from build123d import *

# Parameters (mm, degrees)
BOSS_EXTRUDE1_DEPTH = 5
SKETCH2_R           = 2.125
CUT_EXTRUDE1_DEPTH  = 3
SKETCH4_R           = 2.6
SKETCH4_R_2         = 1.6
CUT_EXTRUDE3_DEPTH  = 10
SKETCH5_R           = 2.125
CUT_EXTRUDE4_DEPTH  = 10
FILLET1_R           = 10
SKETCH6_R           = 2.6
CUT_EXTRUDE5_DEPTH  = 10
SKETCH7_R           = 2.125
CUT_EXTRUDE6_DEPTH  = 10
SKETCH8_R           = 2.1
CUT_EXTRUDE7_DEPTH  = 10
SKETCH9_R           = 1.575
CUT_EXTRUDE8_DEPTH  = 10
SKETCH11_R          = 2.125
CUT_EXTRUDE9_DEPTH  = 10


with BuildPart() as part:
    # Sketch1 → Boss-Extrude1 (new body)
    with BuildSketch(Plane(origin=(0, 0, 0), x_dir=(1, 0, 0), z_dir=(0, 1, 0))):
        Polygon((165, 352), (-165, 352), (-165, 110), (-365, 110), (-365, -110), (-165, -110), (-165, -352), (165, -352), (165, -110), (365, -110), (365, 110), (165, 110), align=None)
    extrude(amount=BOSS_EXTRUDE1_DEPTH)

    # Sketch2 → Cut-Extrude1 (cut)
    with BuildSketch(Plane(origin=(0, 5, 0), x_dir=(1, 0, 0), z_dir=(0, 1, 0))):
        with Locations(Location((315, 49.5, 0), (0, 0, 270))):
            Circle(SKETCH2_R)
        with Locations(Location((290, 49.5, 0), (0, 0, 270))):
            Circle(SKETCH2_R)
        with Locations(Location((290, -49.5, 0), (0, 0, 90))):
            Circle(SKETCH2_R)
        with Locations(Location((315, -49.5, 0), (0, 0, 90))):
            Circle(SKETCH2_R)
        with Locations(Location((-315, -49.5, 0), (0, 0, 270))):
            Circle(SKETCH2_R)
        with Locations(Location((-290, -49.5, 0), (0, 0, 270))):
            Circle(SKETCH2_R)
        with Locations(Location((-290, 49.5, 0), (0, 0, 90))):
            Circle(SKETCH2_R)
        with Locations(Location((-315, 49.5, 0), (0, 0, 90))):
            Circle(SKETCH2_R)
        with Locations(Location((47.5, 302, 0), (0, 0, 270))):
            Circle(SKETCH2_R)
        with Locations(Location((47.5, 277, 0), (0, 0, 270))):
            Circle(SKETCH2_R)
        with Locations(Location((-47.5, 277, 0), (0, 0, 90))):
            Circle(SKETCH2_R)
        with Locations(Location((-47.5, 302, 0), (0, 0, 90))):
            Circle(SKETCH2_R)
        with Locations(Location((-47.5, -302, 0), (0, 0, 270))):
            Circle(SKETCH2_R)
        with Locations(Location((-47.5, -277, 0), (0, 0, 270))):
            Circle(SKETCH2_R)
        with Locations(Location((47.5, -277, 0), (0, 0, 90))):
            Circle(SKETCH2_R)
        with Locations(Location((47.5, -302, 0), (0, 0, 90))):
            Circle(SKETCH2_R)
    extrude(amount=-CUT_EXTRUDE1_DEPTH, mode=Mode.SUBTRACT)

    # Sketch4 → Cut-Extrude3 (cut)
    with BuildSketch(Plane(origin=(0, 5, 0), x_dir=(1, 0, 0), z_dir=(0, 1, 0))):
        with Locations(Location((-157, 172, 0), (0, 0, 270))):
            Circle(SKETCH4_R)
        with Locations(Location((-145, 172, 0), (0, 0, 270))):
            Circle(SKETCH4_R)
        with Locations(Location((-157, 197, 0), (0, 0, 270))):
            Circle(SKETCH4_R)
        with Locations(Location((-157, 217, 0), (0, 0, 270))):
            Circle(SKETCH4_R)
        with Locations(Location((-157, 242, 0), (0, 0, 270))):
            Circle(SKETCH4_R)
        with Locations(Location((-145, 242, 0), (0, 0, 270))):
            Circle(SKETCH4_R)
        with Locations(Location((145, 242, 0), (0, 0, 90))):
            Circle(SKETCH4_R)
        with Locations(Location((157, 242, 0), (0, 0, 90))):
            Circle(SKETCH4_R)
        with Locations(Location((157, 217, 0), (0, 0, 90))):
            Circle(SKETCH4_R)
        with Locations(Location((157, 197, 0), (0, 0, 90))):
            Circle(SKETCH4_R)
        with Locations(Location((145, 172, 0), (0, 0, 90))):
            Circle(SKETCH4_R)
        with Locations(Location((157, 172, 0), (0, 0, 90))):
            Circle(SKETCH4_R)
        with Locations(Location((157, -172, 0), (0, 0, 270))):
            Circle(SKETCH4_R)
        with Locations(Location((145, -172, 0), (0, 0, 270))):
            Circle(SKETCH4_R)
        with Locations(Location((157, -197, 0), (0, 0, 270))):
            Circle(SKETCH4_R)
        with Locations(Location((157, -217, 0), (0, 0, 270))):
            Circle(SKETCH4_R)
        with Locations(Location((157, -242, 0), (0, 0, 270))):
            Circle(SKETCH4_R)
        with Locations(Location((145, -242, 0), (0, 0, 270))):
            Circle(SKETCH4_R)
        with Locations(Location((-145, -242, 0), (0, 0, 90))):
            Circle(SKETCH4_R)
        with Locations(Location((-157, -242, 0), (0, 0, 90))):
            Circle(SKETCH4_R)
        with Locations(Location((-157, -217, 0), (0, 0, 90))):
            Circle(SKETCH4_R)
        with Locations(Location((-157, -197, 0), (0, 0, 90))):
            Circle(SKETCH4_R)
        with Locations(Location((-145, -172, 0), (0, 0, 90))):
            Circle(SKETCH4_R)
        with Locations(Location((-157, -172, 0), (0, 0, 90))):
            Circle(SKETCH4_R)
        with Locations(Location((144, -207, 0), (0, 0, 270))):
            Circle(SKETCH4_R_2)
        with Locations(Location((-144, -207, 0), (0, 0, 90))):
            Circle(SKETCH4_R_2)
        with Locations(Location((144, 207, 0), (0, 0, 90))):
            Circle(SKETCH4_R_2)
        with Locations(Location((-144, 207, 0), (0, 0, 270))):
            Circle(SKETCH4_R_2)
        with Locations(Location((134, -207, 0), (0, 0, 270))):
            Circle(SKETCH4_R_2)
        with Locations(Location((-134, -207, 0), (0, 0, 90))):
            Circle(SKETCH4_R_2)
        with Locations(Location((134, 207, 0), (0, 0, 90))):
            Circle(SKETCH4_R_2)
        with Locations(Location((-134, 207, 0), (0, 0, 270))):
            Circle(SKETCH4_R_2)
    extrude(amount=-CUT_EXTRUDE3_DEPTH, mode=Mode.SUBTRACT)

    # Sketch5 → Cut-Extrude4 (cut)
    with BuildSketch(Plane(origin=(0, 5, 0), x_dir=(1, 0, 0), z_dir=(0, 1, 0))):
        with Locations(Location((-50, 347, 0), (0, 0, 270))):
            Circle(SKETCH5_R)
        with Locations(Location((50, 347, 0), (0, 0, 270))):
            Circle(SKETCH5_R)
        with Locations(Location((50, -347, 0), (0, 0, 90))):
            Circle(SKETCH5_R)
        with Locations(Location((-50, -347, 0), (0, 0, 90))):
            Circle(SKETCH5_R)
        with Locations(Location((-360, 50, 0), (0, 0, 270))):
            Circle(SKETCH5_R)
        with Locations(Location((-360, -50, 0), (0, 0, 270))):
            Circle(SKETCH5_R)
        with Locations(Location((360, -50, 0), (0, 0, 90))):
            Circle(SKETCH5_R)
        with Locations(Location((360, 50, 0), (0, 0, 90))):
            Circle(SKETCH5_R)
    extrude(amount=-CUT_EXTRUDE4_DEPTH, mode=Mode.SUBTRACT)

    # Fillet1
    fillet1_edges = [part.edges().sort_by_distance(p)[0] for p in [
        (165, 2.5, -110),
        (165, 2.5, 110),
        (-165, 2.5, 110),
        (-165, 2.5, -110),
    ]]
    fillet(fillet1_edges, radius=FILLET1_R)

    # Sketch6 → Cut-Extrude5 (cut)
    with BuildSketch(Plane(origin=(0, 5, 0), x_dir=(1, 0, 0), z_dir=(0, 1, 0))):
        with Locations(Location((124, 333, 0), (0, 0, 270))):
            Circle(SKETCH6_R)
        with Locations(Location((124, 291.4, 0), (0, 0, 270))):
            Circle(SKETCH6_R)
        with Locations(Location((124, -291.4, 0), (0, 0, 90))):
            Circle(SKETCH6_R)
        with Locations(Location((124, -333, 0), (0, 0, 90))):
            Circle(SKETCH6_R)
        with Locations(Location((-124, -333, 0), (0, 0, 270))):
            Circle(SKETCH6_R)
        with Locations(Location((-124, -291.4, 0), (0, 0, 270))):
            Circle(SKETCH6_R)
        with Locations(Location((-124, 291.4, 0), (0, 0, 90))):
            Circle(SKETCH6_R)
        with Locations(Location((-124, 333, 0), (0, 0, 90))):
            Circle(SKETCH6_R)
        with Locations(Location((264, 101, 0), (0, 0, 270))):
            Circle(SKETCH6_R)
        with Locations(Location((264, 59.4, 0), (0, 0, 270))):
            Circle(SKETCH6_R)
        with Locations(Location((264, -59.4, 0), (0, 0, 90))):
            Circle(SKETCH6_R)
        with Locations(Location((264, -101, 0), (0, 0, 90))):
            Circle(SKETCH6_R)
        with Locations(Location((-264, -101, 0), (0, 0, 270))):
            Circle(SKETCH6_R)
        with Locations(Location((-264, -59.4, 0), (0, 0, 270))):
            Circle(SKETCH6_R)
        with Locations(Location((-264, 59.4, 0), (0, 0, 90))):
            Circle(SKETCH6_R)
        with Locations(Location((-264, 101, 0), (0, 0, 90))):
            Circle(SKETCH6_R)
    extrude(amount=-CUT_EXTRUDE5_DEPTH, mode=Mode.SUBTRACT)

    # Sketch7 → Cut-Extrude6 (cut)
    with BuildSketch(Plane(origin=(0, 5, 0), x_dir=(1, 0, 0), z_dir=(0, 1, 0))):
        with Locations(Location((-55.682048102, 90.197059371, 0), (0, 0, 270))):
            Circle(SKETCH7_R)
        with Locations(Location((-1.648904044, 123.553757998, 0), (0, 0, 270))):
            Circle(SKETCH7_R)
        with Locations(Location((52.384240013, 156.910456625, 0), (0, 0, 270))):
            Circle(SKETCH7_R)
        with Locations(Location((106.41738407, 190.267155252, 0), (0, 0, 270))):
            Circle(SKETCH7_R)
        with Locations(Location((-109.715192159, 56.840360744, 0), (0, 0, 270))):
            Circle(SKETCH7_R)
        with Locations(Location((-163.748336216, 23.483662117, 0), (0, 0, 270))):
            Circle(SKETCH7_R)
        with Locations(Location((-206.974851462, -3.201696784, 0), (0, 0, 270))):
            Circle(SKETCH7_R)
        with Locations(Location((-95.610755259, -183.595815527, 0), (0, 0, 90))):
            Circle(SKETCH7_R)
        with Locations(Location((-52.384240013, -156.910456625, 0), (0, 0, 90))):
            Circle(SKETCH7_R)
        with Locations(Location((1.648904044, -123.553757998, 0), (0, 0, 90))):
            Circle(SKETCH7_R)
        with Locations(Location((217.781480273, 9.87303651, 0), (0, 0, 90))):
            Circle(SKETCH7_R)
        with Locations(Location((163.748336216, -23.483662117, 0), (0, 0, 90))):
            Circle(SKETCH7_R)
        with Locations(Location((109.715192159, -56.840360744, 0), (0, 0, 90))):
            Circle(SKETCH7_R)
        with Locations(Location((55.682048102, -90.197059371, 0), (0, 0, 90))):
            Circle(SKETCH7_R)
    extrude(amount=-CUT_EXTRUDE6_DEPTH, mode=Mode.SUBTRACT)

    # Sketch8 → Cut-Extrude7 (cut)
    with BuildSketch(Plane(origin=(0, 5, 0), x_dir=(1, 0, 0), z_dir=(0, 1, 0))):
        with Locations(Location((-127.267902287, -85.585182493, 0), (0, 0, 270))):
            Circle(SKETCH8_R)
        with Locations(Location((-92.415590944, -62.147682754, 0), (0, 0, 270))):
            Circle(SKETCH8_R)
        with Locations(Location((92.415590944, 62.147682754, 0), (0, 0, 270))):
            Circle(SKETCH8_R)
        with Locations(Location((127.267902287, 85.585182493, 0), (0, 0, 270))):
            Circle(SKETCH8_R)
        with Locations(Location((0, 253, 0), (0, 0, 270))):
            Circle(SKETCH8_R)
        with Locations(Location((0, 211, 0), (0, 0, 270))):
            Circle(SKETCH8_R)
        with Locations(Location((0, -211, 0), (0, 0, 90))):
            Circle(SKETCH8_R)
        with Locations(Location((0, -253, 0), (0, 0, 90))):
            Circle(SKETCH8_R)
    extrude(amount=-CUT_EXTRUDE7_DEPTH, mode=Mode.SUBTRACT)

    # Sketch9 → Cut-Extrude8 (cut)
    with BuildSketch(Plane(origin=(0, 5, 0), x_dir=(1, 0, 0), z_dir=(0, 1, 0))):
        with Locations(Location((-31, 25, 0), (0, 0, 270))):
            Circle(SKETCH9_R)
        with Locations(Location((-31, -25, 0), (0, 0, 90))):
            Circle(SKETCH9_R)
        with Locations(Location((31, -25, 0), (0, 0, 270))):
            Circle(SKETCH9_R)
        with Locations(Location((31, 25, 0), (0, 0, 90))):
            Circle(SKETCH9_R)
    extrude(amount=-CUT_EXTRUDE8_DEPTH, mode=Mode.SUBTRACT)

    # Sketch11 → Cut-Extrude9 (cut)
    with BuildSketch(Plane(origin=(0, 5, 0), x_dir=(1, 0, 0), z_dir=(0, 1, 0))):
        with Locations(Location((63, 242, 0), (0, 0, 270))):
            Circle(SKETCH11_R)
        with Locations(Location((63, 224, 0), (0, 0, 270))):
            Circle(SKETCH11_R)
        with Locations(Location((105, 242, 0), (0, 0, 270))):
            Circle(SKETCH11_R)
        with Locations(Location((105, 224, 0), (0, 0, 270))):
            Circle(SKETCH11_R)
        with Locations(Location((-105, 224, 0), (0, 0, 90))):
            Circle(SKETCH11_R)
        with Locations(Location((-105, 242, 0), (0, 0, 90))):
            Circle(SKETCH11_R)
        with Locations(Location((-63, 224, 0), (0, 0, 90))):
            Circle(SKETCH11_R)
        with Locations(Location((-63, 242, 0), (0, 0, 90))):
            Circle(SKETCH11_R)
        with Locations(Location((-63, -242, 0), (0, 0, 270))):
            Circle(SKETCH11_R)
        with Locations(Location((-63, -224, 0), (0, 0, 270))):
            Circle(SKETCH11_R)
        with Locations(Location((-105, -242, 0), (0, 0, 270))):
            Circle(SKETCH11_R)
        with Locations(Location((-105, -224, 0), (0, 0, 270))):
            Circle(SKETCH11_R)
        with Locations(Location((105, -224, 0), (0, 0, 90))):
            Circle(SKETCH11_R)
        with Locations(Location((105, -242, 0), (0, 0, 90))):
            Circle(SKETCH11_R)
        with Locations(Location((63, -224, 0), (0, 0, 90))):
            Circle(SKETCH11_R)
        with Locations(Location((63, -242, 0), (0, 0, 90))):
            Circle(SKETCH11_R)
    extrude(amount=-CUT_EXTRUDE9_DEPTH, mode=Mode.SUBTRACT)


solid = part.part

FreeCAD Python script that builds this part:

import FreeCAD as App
import Part
import Sketcher
Q = App.Units.Quantity


def edges_at(feature, points):
    """Names of the edges that pass closest to the given points."""
    edges = feature.Shape.Edges
    near = lambda p: min(range(len(edges)), key=lambda i: edges[i].distToShape(Part.Vertex(*p))[0])
    return sorted({f"Edge{near(p) + 1}" for p in points})

doc = App.newDocument("Part")
body = doc.addObject("PartDesign::Body", "Body")

# Sketch on XZ plane
sketch1 = body.newObject("Sketcher::SketchObject", "Sketch")
sketch1.AttachmentSupport = (doc.getObject("XZ_Plane"), [""])
sketch1.MapMode = "FlatFace"
sketch1.addGeometry(Part.LineSegment(App.Vector(165, -352, 0), App.Vector(-165, -352, 0)), False)
sketch1.addGeometry(Part.LineSegment(App.Vector(-165, -352, 0), App.Vector(-165, -110, 0)), False)
sketch1.addGeometry(Part.LineSegment(App.Vector(-165, -110, 0), App.Vector(-365, -110, 0)), False)
sketch1.addGeometry(Part.LineSegment(App.Vector(-365, -110, 0), App.Vector(-365, 110, 0)), False)
sketch1.addGeometry(Part.LineSegment(App.Vector(-365, 110, 0), App.Vector(-165, 110, 0)), False)
sketch1.addGeometry(Part.LineSegment(App.Vector(-165, 110, 0), App.Vector(-165, 352, 0)), False)
sketch1.addGeometry(Part.LineSegment(App.Vector(-165, 352, 0), App.Vector(165, 352, 0)), False)
sketch1.addGeometry(Part.LineSegment(App.Vector(165, 352, 0), App.Vector(165, 110, 0)), False)
sketch1.addGeometry(Part.LineSegment(App.Vector(165, 110, 0), App.Vector(365, 110, 0)), False)
sketch1.addGeometry(Part.LineSegment(App.Vector(365, 110, 0), App.Vector(365, -110, 0)), False)
sketch1.addGeometry(Part.LineSegment(App.Vector(365, -110, 0), App.Vector(165, -110, 0)), False)
sketch1.addGeometry(Part.LineSegment(App.Vector(165, -110, 0), App.Vector(165, -352, 0)), False)
sketch1.addConstraint(Sketcher.Constraint("Coincident", 0, 2, 1, 1))
sketch1.addConstraint(Sketcher.Constraint("Coincident", 1, 2, 2, 1))
sketch1.addConstraint(Sketcher.Constraint("Coincident", 2, 2, 3, 1))
sketch1.addConstraint(Sketcher.Constraint("Coincident", 3, 2, 4, 1))
sketch1.addConstraint(Sketcher.Constraint("Coincident", 4, 2, 5, 1))
sketch1.addConstraint(Sketcher.Constraint("Coincident", 5, 2, 6, 1))
sketch1.addConstraint(Sketcher.Constraint("Coincident", 6, 2, 7, 1))
sketch1.addConstraint(Sketcher.Constraint("Coincident", 7, 2, 8, 1))
sketch1.addConstraint(Sketcher.Constraint("Coincident", 8, 2, 9, 1))
sketch1.addConstraint(Sketcher.Constraint("Coincident", 9, 2, 10, 1))
sketch1.addConstraint(Sketcher.Constraint("Coincident", 10, 2, 11, 1))
sketch1.addConstraint(Sketcher.Constraint("Coincident", 11, 2, 0, 1))
sketch1.addConstraint(Sketcher.Constraint("Horizontal", 0))
sketch1.addConstraint(Sketcher.Constraint("Vertical", 1))
sketch1.addConstraint(Sketcher.Constraint("Horizontal", 2))
sketch1.addConstraint(Sketcher.Constraint("Vertical", 3))
sketch1.addConstraint(Sketcher.Constraint("Horizontal", 4))
sketch1.addConstraint(Sketcher.Constraint("Vertical", 5))
sketch1.addConstraint(Sketcher.Constraint("Horizontal", 6))
sketch1.addConstraint(Sketcher.Constraint("Vertical", 7))
sketch1.addConstraint(Sketcher.Constraint("Horizontal", 8))
sketch1.addConstraint(Sketcher.Constraint("Vertical", 9))
sketch1.addConstraint(Sketcher.Constraint("Horizontal", 10))
sketch1.addConstraint(Sketcher.Constraint("Vertical", 11))
sketch1.addConstraint(Sketcher.Constraint("Symmetric", 0, 2, 6, 2, -1, 1))
sketch1.addConstraint(Sketcher.Constraint("Symmetric", 2, 2, 8, 2, -1, 1))
sketch1.addConstraint(Sketcher.Constraint("Symmetric", 4, 2, 10, 2, -1, 1))
sketch1.addConstraint(Sketcher.Constraint("Symmetric", 4, 2, 7, 2, -2))
sketch1.addConstraint(Sketcher.Constraint("DistanceX", 0, 2, 0, 1, Q("330 mm")))
sketch1.addConstraint(Sketcher.Constraint("DistanceX", 2, 2, 2, 1, Q("200 mm")))
sketch1.addConstraint(Sketcher.Constraint("DistanceY", 1, 1, 1, 2, Q("242 mm")))
sketch1.addConstraint(Sketcher.Constraint("DistanceY", 3, 1, 3, 2, Q("220 mm")))
pad1 = body.newObject("PartDesign::Pad", "Pad")
pad1.Profile = sketch1
pad1.Length = 5
pad1.Reversed = True

# Sketch on XZ plane
sketch2 = body.newObject("Sketcher::SketchObject", "Sketch001")
sketch2.AttachmentSupport = (doc.getObject("XZ_Plane"), [""])
sketch2.MapMode = "FlatFace"
sketch2.AttachmentOffset = App.Placement(App.Vector(0, 0, -5), App.Rotation())
sketch2.addGeometry(Part.Circle(App.Vector(315, -49.5, 0), App.Vector(0, 0, 1), 2.1), False)
sketch2.addGeometry(Part.Circle(App.Vector(290, -49.5, 0), App.Vector(0, 0, 1), 2.1), False)
sketch2.addGeometry(Part.Circle(App.Vector(290, 49.5, 0), App.Vector(0, 0, 1), 2.1), False)
sketch2.addGeometry(Part.Circle(App.Vector(315, 49.5, 0), App.Vector(0, 0, 1), 2.1), False)
sketch2.addGeometry(Part.Circle(App.Vector(-315, 49.5, 0), App.Vector(0, 0, 1), 2.1), False)
sketch2.addGeometry(Part.Circle(App.Vector(-290, 49.5, 0), App.Vector(0, 0, 1), 2.1), False)
sketch2.addGeometry(Part.Circle(App.Vector(-290, -49.5, 0), App.Vector(0, 0, 1), 2.1), False)
sketch2.addGeometry(Part.Circle(App.Vector(-315, -49.5, 0), App.Vector(0, 0, 1), 2.1), False)
sketch2.addGeometry(Part.Circle(App.Vector(47.5, -302, 0), App.Vector(0, 0, 1), 2.1), False)
sketch2.addGeometry(Part.Circle(App.Vector(47.5, -277, 0), App.Vector(0, 0, 1), 2.1), False)
sketch2.addGeometry(Part.Circle(App.Vector(-47.5, -277, 0), App.Vector(0, 0, 1), 2.1), False)
sketch2.addGeometry(Part.Circle(App.Vector(-47.5, -302, 0), App.Vector(0, 0, 1), 2.1), False)
sketch2.addGeometry(Part.Circle(App.Vector(-47.5, 302, 0), App.Vector(0, 0, 1), 2.1), False)
sketch2.addGeometry(Part.Circle(App.Vector(-47.5, 277, 0), App.Vector(0, 0, 1), 2.1), False)
sketch2.addGeometry(Part.Circle(App.Vector(47.5, 277, 0), App.Vector(0, 0, 1), 2.1), False)
sketch2.addGeometry(Part.Circle(App.Vector(47.5, 302, 0), App.Vector(0, 0, 1), 2.1), False)
sketch2.addConstraint(Sketcher.Constraint("Equal", 0, 1))
sketch2.addConstraint(Sketcher.Constraint("Equal", 1, 2))
sketch2.addConstraint(Sketcher.Constraint("Equal", 2, 3))
sketch2.addConstraint(Sketcher.Constraint("Equal", 3, 4))
sketch2.addConstraint(Sketcher.Constraint("Equal", 4, 5))
sketch2.addConstraint(Sketcher.Constraint("Equal", 5, 6))
sketch2.addConstraint(Sketcher.Constraint("Equal", 6, 7))
sketch2.addConstraint(Sketcher.Constraint("Equal", 7, 8))
sketch2.addConstraint(Sketcher.Constraint("Equal", 8, 9))
sketch2.addConstraint(Sketcher.Constraint("Equal", 9, 10))
sketch2.addConstraint(Sketcher.Constraint("Equal", 10, 11))
sketch2.addConstraint(Sketcher.Constraint("Equal", 11, 12))
sketch2.addConstraint(Sketcher.Constraint("Equal", 12, 13))
sketch2.addConstraint(Sketcher.Constraint("Equal", 13, 14))
sketch2.addConstraint(Sketcher.Constraint("Equal", 14, 15))
sketch2.addConstraint(Sketcher.Constraint("Symmetric", 0, 3, 4, 3, -1, 1))
sketch2.addConstraint(Sketcher.Constraint("Symmetric", 1, 3, 5, 3, -1, 1))
sketch2.addConstraint(Sketcher.Constraint("Symmetric", 2, 3, 6, 3, -1, 1))
sketch2.addConstraint(Sketcher.Constraint("Symmetric", 3, 3, 7, 3, -1, 1))
sketch2.addConstraint(Sketcher.Constraint("Symmetric", 8, 3, 12, 3, -1, 1))
sketch2.addConstraint(Sketcher.Constraint("Symmetric", 9, 3, 13, 3, -1, 1))
sketch2.addConstraint(Sketcher.Constraint("Symmetric", 10, 3, 14, 3, -1, 1))
sketch2.addConstraint(Sketcher.Constraint("Symmetric", 11, 3, 15, 3, -1, 1))
sketch2.addConstraint(Sketcher.Constraint("Symmetric", 3, 3, 4, 3, -2))
sketch2.addConstraint(Sketcher.Constraint("Symmetric", 2, 3, 5, 3, -2))
sketch2.addConstraint(Sketcher.Constraint("Symmetric", 9, 3, 10, 3, -2))
sketch2.addConstraint(Sketcher.Constraint("Symmetric", 8, 3, 11, 3, -2))
sketch2.addConstraint(Sketcher.Constraint("Horizontal", 0, 3, 1, 3))
sketch2.addConstraint(Sketcher.Constraint("Vertical", 8, 3, 9, 3))
sketch2.addConstraint(Sketcher.Constraint("Diameter", 0, Q("4.25 mm")))
sketch2.addConstraint(Sketcher.Constraint("DistanceX", -1, 1, 0, 3, Q("315 mm")))
sketch2.addConstraint(Sketcher.Constraint("DistanceX", -1, 1, 1, 3, Q("290 mm")))
sketch2.addConstraint(Sketcher.Constraint("DistanceY", 8, 3, -1, 1, Q("302 mm")))
sketch2.addConstraint(Sketcher.Constraint("DistanceY", 9, 3, -1, 1, Q("277 mm")))
sketch2.addConstraint(Sketcher.Constraint("DistanceY", 1, 3, 2, 3, Q("99 mm")))
sketch2.addConstraint(Sketcher.Constraint("DistanceX", 10, 3, 9, 3, Q("95 mm")))
pocket1 = body.newObject("PartDesign::Pocket", "Pocket")
pocket1.Profile = sketch2
pocket1.Length = 3
pocket1.Reversed = True

# Sketch on XZ plane
sketch3 = body.newObject("Sketcher::SketchObject", "Sketch002")
sketch3.AttachmentSupport = (doc.getObject("XZ_Plane"), [""])
sketch3.MapMode = "FlatFace"
sketch3.AttachmentOffset = App.Placement(App.Vector(0, 0, -5), App.Rotation())
sketch3.addGeometry(Part.Circle(App.Vector(-157, -172, 0), App.Vector(0, 0, 1), 2.6), False)
sketch3.addGeometry(Part.Circle(App.Vector(-145, -172, 0), App.Vector(0, 0, 1), 2.6), False)
sketch3.addGeometry(Part.Circle(App.Vector(-157, -197, 0), App.Vector(0, 0, 1), 2.6), False)
sketch3.addGeometry(Part.Circle(App.Vector(-157, -217, 0), App.Vector(0, 0, 1), 2.6), False)
sketch3.addGeometry(Part.Circle(App.Vector(-157, -242, 0), App.Vector(0, 0, 1), 2.6), False)
sketch3.addGeometry(Part.Circle(App.Vector(-145, -242, 0), App.Vector(0, 0, 1), 2.6), False)
sketch3.addGeometry(Part.Circle(App.Vector(145, -242, 0), App.Vector(0, 0, 1), 2.6), False)
sketch3.addGeometry(Part.Circle(App.Vector(157, -242, 0), App.Vector(0, 0, 1), 2.6), False)
sketch3.addGeometry(Part.Circle(App.Vector(157, -217, 0), App.Vector(0, 0, 1), 2.6), False)
sketch3.addGeometry(Part.Circle(App.Vector(157, -197, 0), App.Vector(0, 0, 1), 2.6), False)
sketch3.addGeometry(Part.Circle(App.Vector(145, -172, 0), App.Vector(0, 0, 1), 2.6), False)
sketch3.addGeometry(Part.Circle(App.Vector(157, -172, 0), App.Vector(0, 0, 1), 2.6), False)
sketch3.addGeometry(Part.Circle(App.Vector(157, 172, 0), App.Vector(0, 0, 1), 2.6), False)
sketch3.addGeometry(Part.Circle(App.Vector(145, 172, 0), App.Vector(0, 0, 1), 2.6), False)
sketch3.addGeometry(Part.Circle(App.Vector(157, 197, 0), App.Vector(0, 0, 1), 2.6), False)
sketch3.addGeometry(Part.Circle(App.Vector(157, 217, 0), App.Vector(0, 0, 1), 2.6), False)
sketch3.addGeometry(Part.Circle(App.Vector(157, 242, 0), App.Vector(0, 0, 1), 2.6), False)
sketch3.addGeometry(Part.Circle(App.Vector(145, 242, 0), App.Vector(0, 0, 1), 2.6), False)
sketch3.addGeometry(Part.Circle(App.Vector(-145, 242, 0), App.Vector(0, 0, 1), 2.6), False)
sketch3.addGeometry(Part.Circle(App.Vector(-157, 242, 0), App.Vector(0, 0, 1), 2.6), False)
sketch3.addGeometry(Part.Circle(App.Vector(-157, 217, 0), App.Vector(0, 0, 1), 2.6), False)
sketch3.addGeometry(Part.Circle(App.Vector(-157, 197, 0), App.Vector(0, 0, 1), 2.6), False)
sketch3.addGeometry(Part.Circle(App.Vector(-145, 172, 0), App.Vector(0, 0, 1), 2.6), False)
sketch3.addGeometry(Part.Circle(App.Vector(-157, 172, 0), App.Vector(0, 0, 1), 2.6), False)
sketch3.addGeometry(Part.Circle(App.Vector(144, 207, 0), App.Vector(0, 0, 1), 1.6), False)
sketch3.addGeometry(Part.Circle(App.Vector(-144, 207, 0), App.Vector(0, 0, 1), 1.6), False)
sketch3.addGeometry(Part.Circle(App.Vector(144, -207, 0), App.Vector(0, 0, 1), 1.6), False)
sketch3.addGeometry(Part.Circle(App.Vector(-144, -207, 0), App.Vector(0, 0, 1), 1.6), False)
sketch3.addGeometry(Part.Circle(App.Vector(134, 207, 0), App.Vector(0, 0, 1), 1.6), False)
sketch3.addGeometry(Part.Circle(App.Vector(-134, 207, 0), App.Vector(0, 0, 1), 1.6), False)
sketch3.addGeometry(Part.Circle(App.Vector(134, -207, 0), App.Vector(0, 0, 1), 1.6), False)
sketch3.addGeometry(Part.Circle(App.Vector(-134, -207, 0), App.Vector(0, 0, 1), 1.6), False)
sketch3.addConstraint(Sketcher.Constraint("Equal", 0, 1))
sketch3.addConstraint(Sketcher.Constraint("Equal", 1, 2))
sketch3.addConstraint(Sketcher.Constraint("Equal", 2, 3))
sketch3.addConstraint(Sketcher.Constraint("Equal", 3, 4))
sketch3.addConstraint(Sketcher.Constraint("Equal", 4, 5))
sketch3.addConstraint(Sketcher.Constraint("Equal", 5, 6))
sketch3.addConstraint(Sketcher.Constraint("Equal", 6, 7))
sketch3.addConstraint(Sketcher.Constraint("Equal", 7, 8))
sketch3.addConstraint(Sketcher.Constraint("Equal", 8, 9))
sketch3.addConstraint(Sketcher.Constraint("Equal", 9, 10))
sketch3.addConstraint(Sketcher.Constraint("Equal", 10, 11))
sketch3.addConstraint(Sketcher.Constraint("Equal", 11, 12))
sketch3.addConstraint(Sketcher.Constraint("Equal", 12, 13))
sketch3.addConstraint(Sketcher.Constraint("Equal", 13, 14))
sketch3.addConstraint(Sketcher.Constraint("Equal", 14, 15))
sketch3.addConstraint(Sketcher.Constraint("Equal", 15, 16))
sketch3.addConstraint(Sketcher.Constraint("Equal", 16, 17))
sketch3.addConstraint(Sketcher.Constraint("Equal", 17, 18))
sketch3.addConstraint(Sketcher.Constraint("Equal", 18, 19))
sketch3.addConstraint(Sketcher.Constraint("Equal", 19, 20))
sketch3.addConstraint(Sketcher.Constraint("Equal", 20, 21))
sketch3.addConstraint(Sketcher.Constraint("Equal", 21, 22))
sketch3.addConstraint(Sketcher.Constraint("Equal", 22, 23))
sketch3.addConstraint(Sketcher.Constraint("Equal", 24, 25))
sketch3.addConstraint(Sketcher.Constraint("Equal", 25, 26))
sketch3.addConstraint(Sketcher.Constraint("Equal", 26, 27))
sketch3.addConstraint(Sketcher.Constraint("Equal", 27, 28))
sketch3.addConstraint(Sketcher.Constraint("Equal", 28, 29))
sketch3.addConstraint(Sketcher.Constraint("Equal", 29, 30))
sketch3.addConstraint(Sketcher.Constraint("Equal", 30, 31))
sketch3.addConstraint(Sketcher.Constraint("Symmetric", 0, 3, 12, 3, -1, 1))
sketch3.addConstraint(Sketcher.Constraint("Symmetric", 1, 3, 13, 3, -1, 1))
sketch3.addConstraint(Sketcher.Constraint("Symmetric", 2, 3, 14, 3, -1, 1))
sketch3.addConstraint(Sketcher.Constraint("Symmetric", 3, 3, 15, 3, -1, 1))
sketch3.addConstraint(Sketcher.Constraint("Symmetric", 4, 3, 16, 3, -1, 1))
sketch3.addConstraint(Sketcher.Constraint("Symmetric", 5, 3, 17, 3, -1, 1))
sketch3.addConstraint(Sketcher.Constraint("Symmetric", 6, 3, 18, 3, -1, 1))
sketch3.addConstraint(Sketcher.Constraint("Symmetric", 7, 3, 19, 3, -1, 1))
sketch3.addConstraint(Sketcher.Constraint("Symmetric", 8, 3, 20, 3, -1, 1))
sketch3.addConstraint(Sketcher.Constraint("Symmetric", 9, 3, 21, 3, -1, 1))
sketch3.addConstraint(Sketcher.Constraint("Symmetric", 10, 3, 22, 3, -1, 1))
sketch3.addConstraint(Sketcher.Constraint("Symmetric", 11, 3, 23, 3, -1, 1))
sketch3.addConstraint(Sketcher.Constraint("Symmetric", 25, 3, 26, 3, -1, 1))
sketch3.addConstraint(Sketcher.Constraint("Symmetric", 24, 3, 27, 3, -1, 1))
sketch3.addConstraint(Sketcher.Constraint("Symmetric", 29, 3, 30, 3, -1, 1))
sketch3.addConstraint(Sketcher.Constraint("Symmetric", 28, 3, 31, 3, -1, 1))
sketch3.addConstraint(Sketcher.Constraint("Symmetric", 5, 3, 6, 3, -2))
sketch3.addConstraint(Sketcher.Constraint("Symmetric", 4, 3, 7, 3, -2))
sketch3.addConstraint(Sketcher.Constraint("Symmetric", 3, 3, 8, 3, -2))
sketch3.addConstraint(Sketcher.Constraint("Symmetric", 2, 3, 9, 3, -2))
sketch3.addConstraint(Sketcher.Constraint("Symmetric", 1, 3, 10, 3, -2))
sketch3.addConstraint(Sketcher.Constraint("Symmetric", 0, 3, 11, 3, -2))
sketch3.addConstraint(Sketcher.Constraint("Symmetric", 24, 3, 25, 3, -2))
sketch3.addConstraint(Sketcher.Constraint("Symmetric", 28, 3, 29, 3, -2))
sketch3.addConstraint(Sketcher.Constraint("Horizontal", 0, 3, 1, 3))
sketch3.addConstraint(Sketcher.Constraint("Horizontal", 4, 3, 5, 3))
sketch3.addConstraint(Sketcher.Constraint("Horizontal", 25, 3, 28, 3))
sketch3.addConstraint(Sketcher.Constraint("Vertical", 0, 3, 2, 3))
sketch3.addConstraint(Sketcher.Constraint("Vertical", 2, 3, 3, 3))
sketch3.addConstraint(Sketcher.Constraint("Vertical", 3, 3, 4, 3))
sketch3.addConstraint(Sketcher.Constraint("Vertical", 1, 3, 5, 3))
sketch3.addConstraint(Sketcher.Constraint("Diameter", 0, Q("5.2 mm")))
sketch3.addConstraint(Sketcher.Constraint("Diameter", 24, Q("3.2 mm")))
sketch3.addConstraint(Sketcher.Constraint("DistanceX", 0, 3, -1, 1, Q("157 mm")))
sketch3.addConstraint(Sketcher.Constraint("DistanceY", 0, 3, -1, 1, Q("172 mm")))
sketch3.addConstraint(Sketcher.Constraint("DistanceX", 1, 3, -1, 1, Q("145 mm")))
sketch3.addConstraint(Sketcher.Constraint("DistanceY", 2, 3, -1, 1, Q("197 mm")))
sketch3.addConstraint(Sketcher.Constraint("DistanceY", 3, 3, -1, 1, Q("217 mm")))
sketch3.addConstraint(Sketcher.Constraint("DistanceY", 4, 3, -1, 1, Q("242 mm")))
sketch3.addConstraint(Sketcher.Constraint("DistanceX", -1, 1, 24, 3, Q("144 mm")))
sketch3.addConstraint(Sketcher.Constraint("DistanceY", -1, 1, 24, 3, Q("207 mm")))
sketch3.addConstraint(Sketcher.Constraint("DistanceX", -1, 1, 28, 3, Q("134 mm")))
pocket2 = body.newObject("PartDesign::Pocket", "Pocket001")
pocket2.Profile = sketch3
pocket2.Length = 10
pocket2.Reversed = True

# Sketch on XZ plane
sketch4 = body.newObject("Sketcher::SketchObject", "Sketch003")
sketch4.AttachmentSupport = (doc.getObject("XZ_Plane"), [""])
sketch4.MapMode = "FlatFace"
sketch4.AttachmentOffset = App.Placement(App.Vector(0, 0, -5), App.Rotation())
sketch4.addGeometry(Part.Circle(App.Vector(-50, -347, 0), App.Vector(0, 0, 1), 2.1), False)
sketch4.addGeometry(Part.Circle(App.Vector(50, -347, 0), App.Vector(0, 0, 1), 2.1), False)
sketch4.addGeometry(Part.Circle(App.Vector(50, 347, 0), App.Vector(0, 0, 1), 2.1), False)
sketch4.addGeometry(Part.Circle(App.Vector(-50, 347, 0), App.Vector(0, 0, 1), 2.1), False)
sketch4.addGeometry(Part.Circle(App.Vector(-360, -50, 0), App.Vector(0, 0, 1), 2.1), False)
sketch4.addGeometry(Part.Circle(App.Vector(-360, 50, 0), App.Vector(0, 0, 1), 2.1), False)
sketch4.addGeometry(Part.Circle(App.Vector(360, 50, 0), App.Vector(0, 0, 1), 2.1), False)
sketch4.addGeometry(Part.Circle(App.Vector(360, -50, 0), App.Vector(0, 0, 1), 2.1), False)
sketch4.addConstraint(Sketcher.Constraint("Equal", 0, 1))
sketch4.addConstraint(Sketcher.Constraint("Equal", 1, 2))
sketch4.addConstraint(Sketcher.Constraint("Equal", 2, 3))
sketch4.addConstraint(Sketcher.Constraint("Equal", 3, 4))
sketch4.addConstraint(Sketcher.Constraint("Equal", 4, 5))
sketch4.addConstraint(Sketcher.Constraint("Equal", 5, 6))
sketch4.addConstraint(Sketcher.Constraint("Equal", 6, 7))
sketch4.addConstraint(Sketcher.Constraint("Symmetric", 0, 3, 2, 3, -1, 1))
sketch4.addConstraint(Sketcher.Constraint("Symmetric", 1, 3, 3, 3, -1, 1))
sketch4.addConstraint(Sketcher.Constraint("Symmetric", 4, 3, 6, 3, -1, 1))
sketch4.addConstraint(Sketcher.Constraint("Symmetric", 5, 3, 7, 3, -1, 1))
sketch4.addConstraint(Sketcher.Constraint("Symmetric", 0, 3, 1, 3, -2))
sketch4.addConstraint(Sketcher.Constraint("Symmetric", 5, 3, 6, 3, -2))
sketch4.addConstraint(Sketcher.Constraint("Diameter", 0, Q("4.25 mm")))
sketch4.addConstraint(Sketcher.Constraint("DistanceX", 0, 3, -1, 1, Q("50 mm")))
sketch4.addConstraint(Sketcher.Constraint("DistanceY", 0, 3, -1, 1, Q("347 mm")))
sketch4.addConstraint(Sketcher.Constraint("DistanceX", 4, 3, -1, 1, Q("360 mm")))
sketch4.addConstraint(Sketcher.Constraint("DistanceY", 4, 3, -1, 1, Q("50 mm")))
pocket3 = body.newObject("PartDesign::Pocket", "Pocket002")
pocket3.Profile = sketch4
pocket3.Length = 10
pocket3.Reversed = True
doc.recompute()

fillet = body.newObject("PartDesign::Fillet", "Fillet")
fillet.Base = (pocket3, edges_at(pocket3, [
    (165, 2.5, -110),
    (165, 2.5, 110),
    (-165, 2.5, 110),
    (-165, 2.5, -110),
]))
fillet.Radius = 10

# Sketch on XZ plane
sketch5 = body.newObject("Sketcher::SketchObject", "Sketch004")
sketch5.AttachmentSupport = (doc.getObject("XZ_Plane"), [""])
sketch5.MapMode = "FlatFace"
sketch5.AttachmentOffset = App.Placement(App.Vector(0, 0, -5), App.Rotation())
sketch5.addGeometry(Part.Circle(App.Vector(124, -333, 0), App.Vector(0, 0, 1), 2.6), False)
sketch5.addGeometry(Part.Circle(App.Vector(124, -291.4, 0), App.Vector(0, 0, 1), 2.6), False)
sketch5.addGeometry(Part.Circle(App.Vector(124, 291.4, 0), App.Vector(0, 0, 1), 2.6), False)
sketch5.addGeometry(Part.Circle(App.Vector(124, 333, 0), App.Vector(0, 0, 1), 2.6), False)
sketch5.addGeometry(Part.Circle(App.Vector(-124, 333, 0), App.Vector(0, 0, 1), 2.6), False)
sketch5.addGeometry(Part.Circle(App.Vector(-124, 291.4, 0), App.Vector(0, 0, 1), 2.6), False)
sketch5.addGeometry(Part.Circle(App.Vector(-124, -291.4, 0), App.Vector(0, 0, 1), 2.6), False)
sketch5.addGeometry(Part.Circle(App.Vector(-124, -333, 0), App.Vector(0, 0, 1), 2.6), False)
sketch5.addGeometry(Part.Circle(App.Vector(264, -101, 0), App.Vector(0, 0, 1), 2.6), False)
sketch5.addGeometry(Part.Circle(App.Vector(264, -59.4, 0), App.Vector(0, 0, 1), 2.6), False)
sketch5.addGeometry(Part.Circle(App.Vector(264, 59.4, 0), App.Vector(0, 0, 1), 2.6), False)
sketch5.addGeometry(Part.Circle(App.Vector(264, 101, 0), App.Vector(0, 0, 1), 2.6), False)
sketch5.addGeometry(Part.Circle(App.Vector(-264, 101, 0), App.Vector(0, 0, 1), 2.6), False)
sketch5.addGeometry(Part.Circle(App.Vector(-264, 59.4, 0), App.Vector(0, 0, 1), 2.6), False)
sketch5.addGeometry(Part.Circle(App.Vector(-264, -59.4, 0), App.Vector(0, 0, 1), 2.6), False)
sketch5.addGeometry(Part.Circle(App.Vector(-264, -101, 0), App.Vector(0, 0, 1), 2.6), False)
sketch5.addConstraint(Sketcher.Constraint("Equal", 0, 1))
sketch5.addConstraint(Sketcher.Constraint("Equal", 1, 2))
sketch5.addConstraint(Sketcher.Constraint("Equal", 2, 3))
sketch5.addConstraint(Sketcher.Constraint("Equal", 3, 4))
sketch5.addConstraint(Sketcher.Constraint("Equal", 4, 5))
sketch5.addConstraint(Sketcher.Constraint("Equal", 5, 6))
sketch5.addConstraint(Sketcher.Constraint("Equal", 6, 7))
sketch5.addConstraint(Sketcher.Constraint("Equal", 7, 8))
sketch5.addConstraint(Sketcher.Constraint("Equal", 8, 9))
sketch5.addConstraint(Sketcher.Constraint("Equal", 9, 10))
sketch5.addConstraint(Sketcher.Constraint("Equal", 10, 11))
sketch5.addConstraint(Sketcher.Constraint("Equal", 11, 12))
sketch5.addConstraint(Sketcher.Constraint("Equal", 12, 13))
sketch5.addConstraint(Sketcher.Constraint("Equal", 13, 14))
sketch5.addConstraint(Sketcher.Constraint("Equal", 14, 15))
sketch5.addConstraint(Sketcher.Constraint("Symmetric", 0, 3, 4, 3, -1, 1))
sketch5.addConstraint(Sketcher.Constraint("Symmetric", 1, 3, 5, 3, -1, 1))
sketch5.addConstraint(Sketcher.Constraint("Symmetric", 2, 3, 6, 3, -1, 1))
sketch5.addConstraint(Sketcher.Constraint("Symmetric", 3, 3, 7, 3, -1, 1))
sketch5.addConstraint(Sketcher.Constraint("Symmetric", 8, 3, 12, 3, -1, 1))
sketch5.addConstraint(Sketcher.Constraint("Symmetric", 9, 3, 13, 3, -1, 1))
sketch5.addConstraint(Sketcher.Constraint("Symmetric", 10, 3, 14, 3, -1, 1))
sketch5.addConstraint(Sketcher.Constraint("Symmetric", 11, 3, 15, 3, -1, 1))
sketch5.addConstraint(Sketcher.Constraint("Symmetric", 3, 3, 4, 3, -2))
sketch5.addConstraint(Sketcher.Constraint("Symmetric", 2, 3, 5, 3, -2))
sketch5.addConstraint(Sketcher.Constraint("Symmetric", 11, 3, 12, 3, -2))
sketch5.addConstraint(Sketcher.Constraint("Symmetric", 10, 3, 13, 3, -2))
sketch5.addConstraint(Sketcher.Constraint("Vertical", 0, 3, 1, 3))
sketch5.addConstraint(Sketcher.Constraint("Vertical", 8, 3, 9, 3))
sketch5.addConstraint(Sketcher.Constraint("Diameter", 0, Q("5.2 mm")))
sketch5.addConstraint(Sketcher.Constraint("DistanceX", -1, 1, 0, 3, Q("124 mm")))
sketch5.addConstraint(Sketcher.Constraint("DistanceY", 0, 3, -1, 1, Q("333 mm")))
sketch5.addConstraint(Sketcher.Constraint("DistanceX", -1, 1, 8, 3, Q("264 mm")))
sketch5.addConstraint(Sketcher.Constraint("DistanceY", 8, 3, -1, 1, Q("101 mm")))
sketch5.addConstraint(Sketcher.Constraint("DistanceY", 1, 3, 9, 3, Q("232 mm")))
sketch5.addConstraint(Sketcher.Constraint("DistanceY", 1, 3, -1, 1, Q("291.4 mm")))
pocket4 = body.newObject("PartDesign::Pocket", "Pocket003")
pocket4.Profile = sketch5
pocket4.Length = 10
pocket4.Reversed = True

# Sketch on XZ plane
sketch6 = body.newObject("Sketcher::SketchObject", "Sketch005")
sketch6.AttachmentSupport = (doc.getObject("XZ_Plane"), [""])
sketch6.MapMode = "FlatFace"
sketch6.AttachmentOffset = App.Placement(App.Vector(0, 0, -5), App.Rotation())
sketch6.addGeometry(Part.Circle(App.Vector(-55.7, -90.2, 0), App.Vector(0, 0, 1), 2.1), False)
sketch6.addGeometry(Part.Circle(App.Vector(-1.6, -123.6, 0), App.Vector(0, 0, 1), 2.1), False)
sketch6.addGeometry(Part.Circle(App.Vector(52.4, -156.9, 0), App.Vector(0, 0, 1), 2.1), False)
sketch6.addGeometry(Part.Circle(App.Vector(106.4, -190.3, 0), App.Vector(0, 0, 1), 2.1), False)
sketch6.addGeometry(Part.Circle(App.Vector(-109.7, -56.8, 0), App.Vector(0, 0, 1), 2.1), False)
sketch6.addGeometry(Part.Circle(App.Vector(-163.7, -23.5, 0), App.Vector(0, 0, 1), 2.1), False)
sketch6.addGeometry(Part.Circle(App.Vector(-207, 3.2, 0), App.Vector(0, 0, 1), 2.1), False)
sketch6.addGeometry(Part.Circle(App.Vector(-95.6, 183.6, 0), App.Vector(0, 0, 1), 2.1), False)
sketch6.addGeometry(Part.Circle(App.Vector(-52.4, 156.9, 0), App.Vector(0, 0, 1), 2.1), False)
sketch6.addGeometry(Part.Circle(App.Vector(1.6, 123.6, 0), App.Vector(0, 0, 1), 2.1), False)
sketch6.addGeometry(Part.Circle(App.Vector(217.8, -9.9, 0), App.Vector(0, 0, 1), 2.1), False)
sketch6.addGeometry(Part.Circle(App.Vector(163.7, 23.5, 0), App.Vector(0, 0, 1), 2.1), False)
sketch6.addGeometry(Part.Circle(App.Vector(109.7, 56.8, 0), App.Vector(0, 0, 1), 2.1), False)
sketch6.addGeometry(Part.Circle(App.Vector(55.7, 90.2, 0), App.Vector(0, 0, 1), 2.1), False)
sketch6.addConstraint(Sketcher.Constraint("Equal", 0, 1))
sketch6.addConstraint(Sketcher.Constraint("Equal", 1, 2))
sketch6.addConstraint(Sketcher.Constraint("Equal", 2, 3))
sketch6.addConstraint(Sketcher.Constraint("Equal", 3, 4))
sketch6.addConstraint(Sketcher.Constraint("Equal", 4, 5))
sketch6.addConstraint(Sketcher.Constraint("Equal", 5, 6))
sketch6.addConstraint(Sketcher.Constraint("Equal", 6, 7))
sketch6.addConstraint(Sketcher.Constraint("Equal", 7, 8))
sketch6.addConstraint(Sketcher.Constraint("Equal", 8, 9))
sketch6.addConstraint(Sketcher.Constraint("Equal", 9, 10))
sketch6.addConstraint(Sketcher.Constraint("Equal", 10, 11))
sketch6.addConstraint(Sketcher.Constraint("Equal", 11, 12))
sketch6.addConstraint(Sketcher.Constraint("Equal", 12, 13))
sketch6.addConstraint(Sketcher.Constraint("Symmetric", 2, 3, 8, 3, -1, 1))
sketch6.addConstraint(Sketcher.Constraint("Symmetric", 1, 3, 9, 3, -1, 1))
sketch6.addConstraint(Sketcher.Constraint("Symmetric", 5, 3, 11, 3, -1, 1))
sketch6.addConstraint(Sketcher.Constraint("Symmetric", 4, 3, 12, 3, -1, 1))
sketch6.addConstraint(Sketcher.Constraint("Symmetric", 0, 3, 13, 3, -1, 1))
sketch6.addConstraint(Sketcher.Constraint("Diameter", 0, Q("4.25 mm")))
sketch6.addConstraint(Sketcher.Constraint("DistanceY", 1, 3, 0, 3, Q("33.356699 mm")))
sketch6.addConstraint(Sketcher.Constraint("DistanceY", 2, 3, 1, 3, Q("33.356699 mm")))
sketch6.addConstraint(Sketcher.Constraint("DistanceY", 3, 3, 2, 3, Q("33.356699 mm")))
sketch6.addConstraint(Sketcher.Constraint("DistanceY", 0, 3, 4, 3, Q("33.356699 mm")))
sketch6.addConstraint(Sketcher.Constraint("DistanceY", 4, 3, 5, 3, Q("33.356699 mm")))
sketch6.addConstraint(Sketcher.Constraint("DistanceY", 10, 3, 11, 3, Q("33.356699 mm")))
sketch6.addConstraint(Sketcher.Constraint("DistanceX", 0, 3, -1, 1, Q("55.682048 mm")))
sketch6.addConstraint(Sketcher.Constraint("DistanceY", 0, 3, -1, 1, Q("90.197059 mm")))
sketch6.addConstraint(Sketcher.Constraint("DistanceX", -1, 1, 2, 3, Q("52.38424 mm")))
sketch6.addConstraint(Sketcher.Constraint("DistanceX", 6, 3, -1, 1, Q("206.974851 mm")))
sketch6.addConstraint(Sketcher.Constraint("DistanceX", -1, 1, 10, 3, Q("217.78148 mm")))
sketch6.addConstraint(Sketcher.Constraint("DistanceX", 1, 3, 3, 3, Q("108.066288 mm")))
sketch6.addConstraint(Sketcher.Constraint("DistanceX", 4, 3, 1, 3, Q("108.066288 mm")))
sketch6.addConstraint(Sketcher.Constraint("DistanceX", 5, 3, 0, 3, Q("108.066288 mm")))
sketch6.addConstraint(Sketcher.Constraint("DistanceX", 5, 3, 3, 3, Q("270.16572 mm")))
sketch6.addConstraint(Sketcher.Constraint("DistanceY", 5, 3, 6, 3, Q("26.685359 mm")))
sketch6.addConstraint(Sketcher.Constraint("DistanceY", 6, 3, 7, 3, Q("180.394119 mm")))
sketch6.addConstraint(Sketcher.Constraint("DistanceX", 5, 3, 7, 3, Q("68.137581 mm")))
pocket5 = body.newObject("PartDesign::Pocket", "Pocket004")
pocket5.Profile = sketch6
pocket5.Length = 10
pocket5.Reversed = True

# Sketch on XZ plane
sketch7 = body.newObject("Sketcher::SketchObject", "Sketch006")
sketch7.AttachmentSupport = (doc.getObject("XZ_Plane"), [""])
sketch7.MapMode = "FlatFace"
sketch7.AttachmentOffset = App.Placement(App.Vector(0, 0, -5), App.Rotation())
sketch7.addGeometry(Part.Circle(App.Vector(-127.3, 85.6, 0), App.Vector(0, 0, 1), 2.1), False)
sketch7.addGeometry(Part.Circle(App.Vector(-92.4, 62.1, 0), App.Vector(0, 0, 1), 2.1), False)
sketch7.addGeometry(Part.Circle(App.Vector(92.4, -62.1, 0), App.Vector(0, 0, 1), 2.1), False)
sketch7.addGeometry(Part.Circle(App.Vector(127.3, -85.6, 0), App.Vector(0, 0, 1), 2.1), False)
sketch7.addGeometry(Part.Circle(App.Vector(0, -253, 0), App.Vector(0, 0, 1), 2.1), False)
sketch7.addGeometry(Part.Circle(App.Vector(0, -211, 0), App.Vector(0, 0, 1), 2.1), False)
sketch7.addGeometry(Part.Circle(App.Vector(0, 211, 0), App.Vector(0, 0, 1), 2.1), False)
sketch7.addGeometry(Part.Circle(App.Vector(0, 253, 0), App.Vector(0, 0, 1), 2.1), False)
sketch7.addConstraint(Sketcher.Constraint("Equal", 0, 1))
sketch7.addConstraint(Sketcher.Constraint("Equal", 1, 2))
sketch7.addConstraint(Sketcher.Constraint("Equal", 2, 3))
sketch7.addConstraint(Sketcher.Constraint("Equal", 3, 4))
sketch7.addConstraint(Sketcher.Constraint("Equal", 4, 5))
sketch7.addConstraint(Sketcher.Constraint("Equal", 5, 6))
sketch7.addConstraint(Sketcher.Constraint("Equal", 6, 7))
sketch7.addConstraint(Sketcher.Constraint("Symmetric", 1, 3, 2, 3, -1, 1))
sketch7.addConstraint(Sketcher.Constraint("Symmetric", 0, 3, 3, 3, -1, 1))
sketch7.addConstraint(Sketcher.Constraint("Symmetric", 5, 3, 6, 3, -1, 1))
sketch7.addConstraint(Sketcher.Constraint("Symmetric", 4, 3, 7, 3, -1, 1))
sketch7.addConstraint(Sketcher.Constraint("PointOnObject", 4, 3, -2))
sketch7.addConstraint(Sketcher.Constraint("PointOnObject", 5, 3, -2))
sketch7.addConstraint(Sketcher.Constraint("Diameter", 0, Q("4.2 mm")))
sketch7.addConstraint(Sketcher.Constraint("DistanceY", 4, 3, -1, 1, Q("253 mm")))
sketch7.addConstraint(Sketcher.Constraint("DistanceY", 5, 3, -1, 1, Q("211 mm")))
sketch7.addConstraint(Sketcher.Constraint("DistanceY", 1, 3, 0, 3, Q("23.4375 mm")))
sketch7.addConstraint(Sketcher.Constraint("DistanceX", 1, 3, -1, 1, Q("92.415591 mm")))
sketch7.addConstraint(Sketcher.Constraint("DistanceX", 0, 3, 1, 3, Q("34.852311 mm")))
sketch7.addConstraint(Sketcher.Constraint("DistanceY", -1, 1, 0, 3, Q("85.585182 mm")))
pocket6 = body.newObject("PartDesign::Pocket", "Pocket005")
pocket6.Profile = sketch7
pocket6.Length = 10
pocket6.Reversed = True

# Sketch on XZ plane
sketch8 = body.newObject("Sketcher::SketchObject", "Sketch007")
sketch8.AttachmentSupport = (doc.getObject("XZ_Plane"), [""])
sketch8.MapMode = "FlatFace"
sketch8.AttachmentOffset = App.Placement(App.Vector(0, 0, -5), App.Rotation())
sketch8.addGeometry(Part.Circle(App.Vector(-31, -25, 0), App.Vector(0, 0, 1), 1.6), False)
sketch8.addGeometry(Part.Circle(App.Vector(-31, 25, 0), App.Vector(0, 0, 1), 1.6), False)
sketch8.addGeometry(Part.Circle(App.Vector(31, 25, 0), App.Vector(0, 0, 1), 1.6), False)
sketch8.addGeometry(Part.Circle(App.Vector(31, -25, 0), App.Vector(0, 0, 1), 1.6), False)
sketch8.addConstraint(Sketcher.Constraint("Equal", 0, 1))
sketch8.addConstraint(Sketcher.Constraint("Equal", 1, 2))
sketch8.addConstraint(Sketcher.Constraint("Equal", 2, 3))
sketch8.addConstraint(Sketcher.Constraint("Symmetric", 0, 3, 2, 3, -1, 1))
sketch8.addConstraint(Sketcher.Constraint("Symmetric", 1, 3, 3, 3, -1, 1))
sketch8.addConstraint(Sketcher.Constraint("Symmetric", 1, 3, 2, 3, -2))
sketch8.addConstraint(Sketcher.Constraint("Diameter", 0, Q("3.15 mm")))
sketch8.addConstraint(Sketcher.Constraint("DistanceX", 0, 3, -1, 1, Q("31 mm")))
sketch8.addConstraint(Sketcher.Constraint("DistanceY", 0, 3, -1, 1, Q("25 mm")))
pocket7 = body.newObject("PartDesign::Pocket", "Pocket006")
pocket7.Profile = sketch8
pocket7.Length = 10
pocket7.Reversed = True

# Sketch on XZ plane
sketch9 = body.newObject("Sketcher::SketchObject", "Sketch008")
sketch9.AttachmentSupport = (doc.getObject("XZ_Plane"), [""])
sketch9.MapMode = "FlatFace"
sketch9.AttachmentOffset = App.Placement(App.Vector(0, 0, -5), App.Rotation())
sketch9.addGeometry(Part.Circle(App.Vector(63, -242, 0), App.Vector(0, 0, 1), 2.1), False)
sketch9.addGeometry(Part.Circle(App.Vector(63, -224, 0), App.Vector(0, 0, 1), 2.1), False)
sketch9.addGeometry(Part.Circle(App.Vector(105, -242, 0), App.Vector(0, 0, 1), 2.1), False)
sketch9.addGeometry(Part.Circle(App.Vector(105, -224, 0), App.Vector(0, 0, 1), 2.1), False)
sketch9.addGeometry(Part.Circle(App.Vector(-105, -224, 0), App.Vector(0, 0, 1), 2.1), False)
sketch9.addGeometry(Part.Circle(App.Vector(-105, -242, 0), App.Vector(0, 0, 1), 2.1), False)
sketch9.addGeometry(Part.Circle(App.Vector(-63, -224, 0), App.Vector(0, 0, 1), 2.1), False)
sketch9.addGeometry(Part.Circle(App.Vector(-63, -242, 0), App.Vector(0, 0, 1), 2.1), False)
sketch9.addGeometry(Part.Circle(App.Vector(-63, 242, 0), App.Vector(0, 0, 1), 2.1), False)
sketch9.addGeometry(Part.Circle(App.Vector(-63, 224, 0), App.Vector(0, 0, 1), 2.1), False)
sketch9.addGeometry(Part.Circle(App.Vector(-105, 242, 0), App.Vector(0, 0, 1), 2.1), False)
sketch9.addGeometry(Part.Circle(App.Vector(-105, 224, 0), App.Vector(0, 0, 1), 2.1), False)
sketch9.addGeometry(Part.Circle(App.Vector(105, 224, 0), App.Vector(0, 0, 1), 2.1), False)
sketch9.addGeometry(Part.Circle(App.Vector(105, 242, 0), App.Vector(0, 0, 1), 2.1), False)
sketch9.addGeometry(Part.Circle(App.Vector(63, 224, 0), App.Vector(0, 0, 1), 2.1), False)
sketch9.addGeometry(Part.Circle(App.Vector(63, 242, 0), App.Vector(0, 0, 1), 2.1), False)
sketch9.addConstraint(Sketcher.Constraint("Equal", 0, 1))
sketch9.addConstraint(Sketcher.Constraint("Equal", 1, 2))
sketch9.addConstraint(Sketcher.Constraint("Equal", 2, 3))
sketch9.addConstraint(Sketcher.Constraint("Equal", 3, 4))
sketch9.addConstraint(Sketcher.Constraint("Equal", 4, 5))
sketch9.addConstraint(Sketcher.Constraint("Equal", 5, 6))
sketch9.addConstraint(Sketcher.Constraint("Equal", 6, 7))
sketch9.addConstraint(Sketcher.Constraint("Equal", 7, 8))
sketch9.addConstraint(Sketcher.Constraint("Equal", 8, 9))
sketch9.addConstraint(Sketcher.Constraint("Equal", 9, 10))
sketch9.addConstraint(Sketcher.Constraint("Equal", 10, 11))
sketch9.addConstraint(Sketcher.Constraint("Equal", 11, 12))
sketch9.addConstraint(Sketcher.Constraint("Equal", 12, 13))
sketch9.addConstraint(Sketcher.Constraint("Equal", 13, 14))
sketch9.addConstraint(Sketcher.Constraint("Equal", 14, 15))
sketch9.addConstraint(Sketcher.Constraint("Symmetric", 0, 3, 8, 3, -1, 1))
sketch9.addConstraint(Sketcher.Constraint("Symmetric", 1, 3, 9, 3, -1, 1))
sketch9.addConstraint(Sketcher.Constraint("Symmetric", 2, 3, 10, 3, -1, 1))
sketch9.addConstraint(Sketcher.Constraint("Symmetric", 3, 3, 11, 3, -1, 1))
sketch9.addConstraint(Sketcher.Constraint("Symmetric", 4, 3, 12, 3, -1, 1))
sketch9.addConstraint(Sketcher.Constraint("Symmetric", 5, 3, 13, 3, -1, 1))
sketch9.addConstraint(Sketcher.Constraint("Symmetric", 6, 3, 14, 3, -1, 1))
sketch9.addConstraint(Sketcher.Constraint("Symmetric", 7, 3, 15, 3, -1, 1))
sketch9.addConstraint(Sketcher.Constraint("Symmetric", 3, 3, 4, 3, -2))
sketch9.addConstraint(Sketcher.Constraint("Symmetric", 2, 3, 5, 3, -2))
sketch9.addConstraint(Sketcher.Constraint("Symmetric", 1, 3, 6, 3, -2))
sketch9.addConstraint(Sketcher.Constraint("Symmetric", 0, 3, 7, 3, -2))
sketch9.addConstraint(Sketcher.Constraint("Horizontal", 0, 3, 2, 3))
sketch9.addConstraint(Sketcher.Constraint("Horizontal", 1, 3, 3, 3))
sketch9.addConstraint(Sketcher.Constraint("Vertical", 0, 3, 1, 3))
sketch9.addConstraint(Sketcher.Constraint("Vertical", 2, 3, 3, 3))
sketch9.addConstraint(Sketcher.Constraint("Diameter", 0, Q("4.25 mm")))
sketch9.addConstraint(Sketcher.Constraint("DistanceX", -1, 1, 0, 3, Q("63 mm")))
sketch9.addConstraint(Sketcher.Constraint("DistanceY", 0, 3, -1, 1, Q("242 mm")))
sketch9.addConstraint(Sketcher.Constraint("DistanceY", 1, 3, -1, 1, Q("224 mm")))
sketch9.addConstraint(Sketcher.Constraint("DistanceX", -1, 1, 2, 3, Q("105 mm")))
pocket8 = body.newObject("PartDesign::Pocket", "Pocket007")
pocket8.Profile = sketch9
pocket8.Length = 10
pocket8.Reversed = True

doc.recompute()
